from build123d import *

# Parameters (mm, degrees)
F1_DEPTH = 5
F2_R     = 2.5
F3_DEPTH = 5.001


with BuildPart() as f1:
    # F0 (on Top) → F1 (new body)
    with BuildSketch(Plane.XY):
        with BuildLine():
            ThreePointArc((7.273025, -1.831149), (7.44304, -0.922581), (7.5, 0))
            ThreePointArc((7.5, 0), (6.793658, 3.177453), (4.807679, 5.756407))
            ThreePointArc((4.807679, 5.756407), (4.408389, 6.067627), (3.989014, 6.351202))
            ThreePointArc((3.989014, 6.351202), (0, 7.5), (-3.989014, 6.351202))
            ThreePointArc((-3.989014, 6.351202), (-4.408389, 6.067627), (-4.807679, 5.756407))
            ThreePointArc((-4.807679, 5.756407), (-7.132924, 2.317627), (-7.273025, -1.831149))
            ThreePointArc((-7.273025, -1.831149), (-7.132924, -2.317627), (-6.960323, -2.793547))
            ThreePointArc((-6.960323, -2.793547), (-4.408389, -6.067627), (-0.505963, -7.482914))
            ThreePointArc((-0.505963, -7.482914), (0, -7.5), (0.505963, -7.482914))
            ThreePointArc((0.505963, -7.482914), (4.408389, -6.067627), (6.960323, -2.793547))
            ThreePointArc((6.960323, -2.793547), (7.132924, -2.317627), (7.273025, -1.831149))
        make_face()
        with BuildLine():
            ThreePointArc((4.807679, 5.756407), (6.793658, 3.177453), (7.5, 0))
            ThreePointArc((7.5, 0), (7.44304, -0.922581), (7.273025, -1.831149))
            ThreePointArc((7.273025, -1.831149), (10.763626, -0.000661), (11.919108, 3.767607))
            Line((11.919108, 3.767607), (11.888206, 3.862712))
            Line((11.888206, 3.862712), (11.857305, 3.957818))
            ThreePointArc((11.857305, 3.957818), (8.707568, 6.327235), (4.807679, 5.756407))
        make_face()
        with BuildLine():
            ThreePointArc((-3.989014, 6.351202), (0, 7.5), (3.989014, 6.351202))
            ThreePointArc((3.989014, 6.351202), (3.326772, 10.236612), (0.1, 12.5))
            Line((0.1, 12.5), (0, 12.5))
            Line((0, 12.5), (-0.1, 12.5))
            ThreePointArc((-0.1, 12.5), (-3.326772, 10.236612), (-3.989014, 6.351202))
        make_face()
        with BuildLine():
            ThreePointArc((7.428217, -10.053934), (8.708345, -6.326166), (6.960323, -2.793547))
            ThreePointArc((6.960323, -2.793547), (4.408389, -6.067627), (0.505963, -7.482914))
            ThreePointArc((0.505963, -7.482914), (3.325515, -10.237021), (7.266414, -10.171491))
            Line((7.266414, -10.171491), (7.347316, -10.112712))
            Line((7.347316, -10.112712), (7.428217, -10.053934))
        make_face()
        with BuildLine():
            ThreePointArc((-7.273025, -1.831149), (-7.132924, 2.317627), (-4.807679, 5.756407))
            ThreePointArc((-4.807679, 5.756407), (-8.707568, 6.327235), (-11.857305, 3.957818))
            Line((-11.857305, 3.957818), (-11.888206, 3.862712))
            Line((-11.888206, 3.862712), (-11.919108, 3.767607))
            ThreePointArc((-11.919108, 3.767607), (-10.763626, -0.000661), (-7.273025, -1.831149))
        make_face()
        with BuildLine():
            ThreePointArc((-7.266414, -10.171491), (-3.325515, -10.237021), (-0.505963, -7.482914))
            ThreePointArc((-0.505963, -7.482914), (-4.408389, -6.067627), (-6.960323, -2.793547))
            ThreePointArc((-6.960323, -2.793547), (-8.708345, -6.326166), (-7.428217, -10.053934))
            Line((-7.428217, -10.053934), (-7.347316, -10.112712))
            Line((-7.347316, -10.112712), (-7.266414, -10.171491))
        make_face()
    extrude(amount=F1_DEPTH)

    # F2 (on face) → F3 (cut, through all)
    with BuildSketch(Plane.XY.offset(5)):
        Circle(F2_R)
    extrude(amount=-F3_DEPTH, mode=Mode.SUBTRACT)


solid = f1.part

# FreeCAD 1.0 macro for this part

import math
import FreeCAD as App
import Part
import Sketcher
from FreeCAD import Vector
Q = App.Units.Quantity

doc = App.newDocument("Part")
body = doc.addObject("PartDesign::Body", "Body")

# Sketch on XY plane
sketch1 = body.newObject("Sketcher::SketchObject", "Sketch")
sketch1.AttachmentSupport = (doc.getObject("XY_Plane"), [""])
sketch1.MapMode = "FlatFace"
sketch1.addGeometry([
    Part.ArcOfCircle(Part.Circle(Vector(-0.000142, -0.000195, 0), Vector(0, 0, 1), 7.500241), math.radians(50.131912), math.radians(57.868082)),  # 0
    Part.ArcOfCircle(Part.Circle(Vector(-0.999999, 7.500001, 0), Vector(0, 0, 1), 5.11957), math.radians(-12.967221), math.radians(77.592586)),  # 1
    Part.LineSegment(Vector(0.1, 12.5, 0), Vector(-0.1, 12.5, 0)),  # 2
    Part.ArcOfCircle(Part.Circle(Vector(0.999999, 7.500001, 0), Vector(0, 0, 1), 5.11957), math.radians(102.407414), math.radians(192.967221)),  # 3
    Part.ArcOfCircle(Part.Circle(Vector(0.000142, -0.000195, 0), Vector(0, 0, 1), 7.500241), math.radians(122.131918), math.radians(129.868088)),  # 4
    Part.ArcOfCircle(Part.Circle(Vector(-7.441941, 1.366571, 0), Vector(0, 0, 1), 5.11957), math.radians(59.032781), math.radians(149.592583)),  # 5
    Part.LineSegment(Vector(-11.857305, 3.957818, 0), Vector(-11.888206, 3.862712, 0)),  # 6
    Part.LineSegment(Vector(-11.888206, 3.862712, 0), Vector(-11.919108, 3.767607, 0)),  # 7
    Part.ArcOfCircle(Part.Circle(Vector(-6.823907, 3.268683, 0), Vector(0, 0, 1), 5.11957), math.radians(174.407407), math.radians(264.967219)),  # 8
    Part.ArcOfCircle(Part.Circle(Vector(0.000014, 0.000004, 0), Vector(0, 0, 1), 7.500015), math.radians(-165.868203), math.radians(-158.131804)),  # 9
    Part.ArcOfCircle(Part.Circle(Vector(-3.599375, -6.655413, 0), Vector(0, 0, 1), 5.119568), math.radians(131.032767), math.radians(221.592604)),  # 10
    Part.LineSegment(Vector(-7.428217, -10.053934, 0), Vector(-7.347316, -10.112712, 0)),  # 11
    Part.LineSegment(Vector(-7.347316, -10.112712, 0), Vector(-7.266414, -10.171491, 0)),  # 12
    Part.ArcOfCircle(Part.Circle(Vector(-5.217406, -5.479844, 0), Vector(0, 0, 1), 5.119569), math.radians(-113.592592), math.radians(-23.032772)),  # 13
    Part.ArcOfCircle(Part.Circle(Vector(0, 0.000014, 0), Vector(0, 0, 1), 7.500014), math.radians(-93.868203), math.radians(-86.131797)),  # 14
    Part.ArcOfCircle(Part.Circle(Vector(5.217406, -5.479844, 0), Vector(0, 0, 1), 5.119569), math.radians(-156.967228), math.radians(-66.407408)),  # 15
    Part.LineSegment(Vector(7.266414, -10.171491, 0), Vector(7.347316, -10.112712, 0)),  # 16
    Part.LineSegment(Vector(7.347316, -10.112712, 0), Vector(7.428217, -10.053934, 0)),  # 17
    Part.ArcOfCircle(Part.Circle(Vector(3.599375, -6.655413, 0), Vector(0, 0, 1), 5.119568), math.radians(-41.592604), math.radians(48.967233)),  # 18
    Part.ArcOfCircle(Part.Circle(Vector(-0.000014, 0.000004, 0), Vector(0, 0, 1), 7.500015), math.radians(-21.868196), math.radians(-14.131797)),  # 19
    Part.ArcOfCircle(Part.Circle(Vector(6.823907, 3.268683, 0), Vector(0, 0, 1), 5.11957), math.radians(-84.967219), math.radians(5.592593)),  # 20
    Part.LineSegment(Vector(11.919108, 3.767607, 0), Vector(11.888206, 3.862712, 0)),  # 21
    Part.LineSegment(Vector(11.888206, 3.862712, 0), Vector(11.857305, 3.957818, 0)),  # 22
    Part.ArcOfCircle(Part.Circle(Vector(7.441941, 1.366571, 0), Vector(0, 0, 1), 5.11957), math.radians(30.407417), math.radians(120.967219)),  # 23
], False)
sketch1.addConstraint([
    Sketcher.Constraint("Coincident", 0, 2, 1, 1),
    Sketcher.Constraint("Coincident", 1, 2, 2, 1),
    Sketcher.Constraint("Coincident", 2, 2, 3, 1),
    Sketcher.Constraint("Coincident", 3, 2, 4, 1),
    Sketcher.Constraint("Coincident", 4, 2, 5, 1),
    Sketcher.Constraint("Coincident", 5, 2, 6, 1),
    Sketcher.Constraint("Coincident", 6, 2, 7, 1),
    Sketcher.Constraint("Coincident", 7, 2, 8, 1),
    Sketcher.Constraint("Coincident", 8, 2, 9, 1),
    Sketcher.Constraint("Coincident", 9, 2, 10, 1),
    Sketcher.Constraint("Coincident", 10, 2, 11, 1),
    Sketcher.Constraint("Coincident", 11, 2, 12, 1),
    Sketcher.Constraint("Coincident", 12, 2, 13, 1),
    Sketcher.Constraint("Coincident", 13, 2, 14, 1),
    Sketcher.Constraint("Coincident", 14, 2, 15, 1),
    Sketcher.Constraint("Coincident", 15, 2, 16, 1),
    Sketcher.Constraint("Coincident", 16, 2, 17, 1),
    Sketcher.Constraint("Coincident", 17, 2, 18, 1),
    Sketcher.Constraint("Coincident", 18, 2, 19, 1),
    Sketcher.Constraint("Coincident", 19, 2, 20, 1),
    Sketcher.Constraint("Coincident", 20, 2, 21, 1),
    Sketcher.Constraint("Coincident", 21, 2, 22, 1),
    Sketcher.Constraint("Coincident", 22, 2, 23, 1),
    Sketcher.Constraint("Coincident", 23, 2, 0, 1),
    Sketcher.Constraint("Horizontal", 2),
    Sketcher.Constraint("PointOnObject", 14, 3, -2),
    Sketcher.Constraint("DistanceX", 2, 2, 2, 1, Q("0.2 mm")),
    Sketcher.Constraint("DistanceX", 1, 3, -1, 1, Q("0.999999 mm")),
    Sketcher.Constraint("DistanceX", -1, 1, 3, 3, Q("0.999999 mm")),
    Sketcher.Constraint("DistanceY", 3, 3, 1, 2, Q("4.999999 mm")),
    Sketcher.Constraint("DistanceY", 1, 3, 1, 2, Q("4.999999 mm")),
    Sketcher.Constraint("Distance", 6, Q("0.1 mm")),
    Sketcher.Constraint("Distance", 7, Q("0.099999 mm")),
    Sketcher.Constraint("Distance", 11, Q("0.099999 mm")),
    Sketcher.Constraint("Distance", 12, Q("0.100001 mm")),
    Sketcher.Constraint("Distance", 16, Q("0.100001 mm")),
    Sketcher.Constraint("Distance", 17, Q("0.099999 mm")),
    Sketcher.Constraint("Distance", 21, Q("0.099999 mm")),
    Sketcher.Constraint("Distance", 22, Q("0.1 mm")),
    Sketcher.Constraint("DistanceY", -1, 1, 1, 3, Q("7.500001 mm")),
    Sketcher.Constraint("DistanceX", -1, 1, 1, 2, Q("0.1 mm")),
    Sketcher.Constraint("Radius", 0, Q("7.500241 mm")),
    Sketcher.Constraint("Radius", 4, Q("7.500241 mm")),
    Sketcher.Constraint("Radius", 5, Q("5.11957 mm")),
    Sketcher.Constraint("Radius", 8, Q("5.11957 mm")),
    Sketcher.Constraint("Radius", 10, Q("5.119568 mm")),
    Sketcher.Constraint("Radius", 13, Q("5.119569 mm")),
    Sketcher.Constraint("Radius", 15, Q("5.119569 mm")),
    Sketcher.Constraint("Radius", 18, Q("5.119568 mm")),
    Sketcher.Constraint("Radius", 20, Q("5.11957 mm")),
    Sketcher.Constraint("Radius", 23, Q("5.11957 mm")),
    Sketcher.Constraint("Radius", 9, Q("7.500015 mm")),
    Sketcher.Constraint("Radius", 14, Q("7.500014 mm")),
    Sketcher.Constraint("Radius", 19, Q("7.500015 mm")),
    Sketcher.Constraint("DistanceY", -1, 1, 0, 2, Q("6.351202 mm")),
    Sketcher.Constraint("DistanceX", 5, 3, 0, 3, Q("7.441799 mm")),
    Sketcher.Constraint("DistanceY", 4, 3, 9, 3, Q("0.000199 mm")),
    Sketcher.Constraint("DistanceY", 0, 3, 9, 3, Q("0.000199 mm")),
    Sketcher.Constraint("DistanceY", 0, 3, 19, 3, Q("0.000199 mm")),
    Sketcher.Constraint("DistanceX", 4, 3, 23, 3, Q("7.441799 mm")),
    Sketcher.Constraint("DistanceY", 3, 2, 1, 3, Q("1.148799 mm")),
    Sketcher.Constraint("DistanceX", 6, 2, 5, 2, Q("0.030901 mm")),
    Sketcher.Constraint("DistanceX", 6, 2, 8, 3, Q("5.064299 mm")),
    Sketcher.Constraint("DistanceX", 7, 2, 6, 2, Q("0.030902 mm")),
    Sketcher.Constraint("DistanceY", 7, 2, 4, 2, Q("1.9888 mm")),
    Sketcher.Constraint("DistanceX", 8, 2, 9, 2, Q("0.312702 mm")),
    Sketcher.Constraint("DistanceY", 9, 2, 8, 2, Q("0.962398 mm")),
    Sketcher.Constraint("DistanceX", 10, 2, 11, 2, Q("0.080901 mm")),
    Sketcher.Constraint("DistanceY", 11, 2, 10, 3, Q("3.457299 mm")),
    Sketcher.Constraint("DistanceY", 13, 2, 10, 3, Q("0.827501 mm")),
    Sketcher.Constraint("DistanceY", 13, 2, 18, 3, Q("0.827501 mm")),
    Sketcher.Constraint("DistanceY", 14, 2, 18, 3, Q("0.827501 mm")),
    Sketcher.Constraint("DistanceX", 15, 2, 16, 2, Q("0.080902 mm")),
    Sketcher.Constraint("DistanceY", 16, 2, 18, 3, Q("3.457299 mm")),
    Sketcher.Constraint("DistanceX", 16, 2, 17, 2, Q("0.080901 mm")),
    Sketcher.Constraint("DistanceX", 20, 3, 20, 2, Q("5.095201 mm")),
    Sketcher.Constraint("DistanceX", 21, 2, 20, 2, Q("0.030902 mm")),
    Sketcher.Constraint("DistanceX", 22, 2, 21, 2, Q("0.030901 mm")),
    Sketcher.Constraint("DistanceX", 0, 3, -1, 1, Q("0.000142 mm")),
    Sketcher.Constraint("DistanceY", -1, 1, 5, 3, Q("1.366571 mm")),
    Sketcher.Constraint("DistanceY", -1, 1, 23, 3, Q("1.366571 mm")),
    Sketcher.Constraint("DistanceY", 12, 2, -1, 1, Q("10.171491 mm")),
    Sketcher.Constraint("DistanceY", 15, 2, -1, 1, Q("10.171491 mm")),
    Sketcher.Constraint("DistanceY", 19, 2, -1, 1, Q("1.831149 mm")),
    Sketcher.Constraint("DistanceY", -1, 1, 22, 2, Q("3.957818 mm")),
    Sketcher.Constraint("DistanceX", 13, 3, 10, 3, Q("1.618031 mm")),
    Sketcher.Constraint("DistanceY", 15, 3, 4, 3, Q("5.479649 mm")),
])
pad1 = body.newObject("PartDesign::Pad", "Pad")
pad1.Profile = sketch1
pad1.Length = 5

# Sketch on XY plane
sketch2 = body.newObject("Sketcher::SketchObject", "Sketch001")
sketch2.AttachmentSupport = (doc.getObject("XY_Plane"), [""])
sketch2.MapMode = "FlatFace"
sketch2.AttachmentOffset = App.Placement(Vector(0, 0, 5), App.Rotation())
sketch2.addGeometry(Part.Circle(Vector(0, 0, 0), Vector(0, 0, 1), 2.5), False)
sketch2.addConstraint([
    Sketcher.Constraint("Coincident", 0, 3, -1, 1),
    Sketcher.Constraint("Diameter", 0, Q("5 mm")),
])
pocket1 = body.newObject("PartDesign::Pocket", "Pocket")
pocket1.Profile = sketch2
pocket1.Type = "ThroughAll"

doc.recompute()
